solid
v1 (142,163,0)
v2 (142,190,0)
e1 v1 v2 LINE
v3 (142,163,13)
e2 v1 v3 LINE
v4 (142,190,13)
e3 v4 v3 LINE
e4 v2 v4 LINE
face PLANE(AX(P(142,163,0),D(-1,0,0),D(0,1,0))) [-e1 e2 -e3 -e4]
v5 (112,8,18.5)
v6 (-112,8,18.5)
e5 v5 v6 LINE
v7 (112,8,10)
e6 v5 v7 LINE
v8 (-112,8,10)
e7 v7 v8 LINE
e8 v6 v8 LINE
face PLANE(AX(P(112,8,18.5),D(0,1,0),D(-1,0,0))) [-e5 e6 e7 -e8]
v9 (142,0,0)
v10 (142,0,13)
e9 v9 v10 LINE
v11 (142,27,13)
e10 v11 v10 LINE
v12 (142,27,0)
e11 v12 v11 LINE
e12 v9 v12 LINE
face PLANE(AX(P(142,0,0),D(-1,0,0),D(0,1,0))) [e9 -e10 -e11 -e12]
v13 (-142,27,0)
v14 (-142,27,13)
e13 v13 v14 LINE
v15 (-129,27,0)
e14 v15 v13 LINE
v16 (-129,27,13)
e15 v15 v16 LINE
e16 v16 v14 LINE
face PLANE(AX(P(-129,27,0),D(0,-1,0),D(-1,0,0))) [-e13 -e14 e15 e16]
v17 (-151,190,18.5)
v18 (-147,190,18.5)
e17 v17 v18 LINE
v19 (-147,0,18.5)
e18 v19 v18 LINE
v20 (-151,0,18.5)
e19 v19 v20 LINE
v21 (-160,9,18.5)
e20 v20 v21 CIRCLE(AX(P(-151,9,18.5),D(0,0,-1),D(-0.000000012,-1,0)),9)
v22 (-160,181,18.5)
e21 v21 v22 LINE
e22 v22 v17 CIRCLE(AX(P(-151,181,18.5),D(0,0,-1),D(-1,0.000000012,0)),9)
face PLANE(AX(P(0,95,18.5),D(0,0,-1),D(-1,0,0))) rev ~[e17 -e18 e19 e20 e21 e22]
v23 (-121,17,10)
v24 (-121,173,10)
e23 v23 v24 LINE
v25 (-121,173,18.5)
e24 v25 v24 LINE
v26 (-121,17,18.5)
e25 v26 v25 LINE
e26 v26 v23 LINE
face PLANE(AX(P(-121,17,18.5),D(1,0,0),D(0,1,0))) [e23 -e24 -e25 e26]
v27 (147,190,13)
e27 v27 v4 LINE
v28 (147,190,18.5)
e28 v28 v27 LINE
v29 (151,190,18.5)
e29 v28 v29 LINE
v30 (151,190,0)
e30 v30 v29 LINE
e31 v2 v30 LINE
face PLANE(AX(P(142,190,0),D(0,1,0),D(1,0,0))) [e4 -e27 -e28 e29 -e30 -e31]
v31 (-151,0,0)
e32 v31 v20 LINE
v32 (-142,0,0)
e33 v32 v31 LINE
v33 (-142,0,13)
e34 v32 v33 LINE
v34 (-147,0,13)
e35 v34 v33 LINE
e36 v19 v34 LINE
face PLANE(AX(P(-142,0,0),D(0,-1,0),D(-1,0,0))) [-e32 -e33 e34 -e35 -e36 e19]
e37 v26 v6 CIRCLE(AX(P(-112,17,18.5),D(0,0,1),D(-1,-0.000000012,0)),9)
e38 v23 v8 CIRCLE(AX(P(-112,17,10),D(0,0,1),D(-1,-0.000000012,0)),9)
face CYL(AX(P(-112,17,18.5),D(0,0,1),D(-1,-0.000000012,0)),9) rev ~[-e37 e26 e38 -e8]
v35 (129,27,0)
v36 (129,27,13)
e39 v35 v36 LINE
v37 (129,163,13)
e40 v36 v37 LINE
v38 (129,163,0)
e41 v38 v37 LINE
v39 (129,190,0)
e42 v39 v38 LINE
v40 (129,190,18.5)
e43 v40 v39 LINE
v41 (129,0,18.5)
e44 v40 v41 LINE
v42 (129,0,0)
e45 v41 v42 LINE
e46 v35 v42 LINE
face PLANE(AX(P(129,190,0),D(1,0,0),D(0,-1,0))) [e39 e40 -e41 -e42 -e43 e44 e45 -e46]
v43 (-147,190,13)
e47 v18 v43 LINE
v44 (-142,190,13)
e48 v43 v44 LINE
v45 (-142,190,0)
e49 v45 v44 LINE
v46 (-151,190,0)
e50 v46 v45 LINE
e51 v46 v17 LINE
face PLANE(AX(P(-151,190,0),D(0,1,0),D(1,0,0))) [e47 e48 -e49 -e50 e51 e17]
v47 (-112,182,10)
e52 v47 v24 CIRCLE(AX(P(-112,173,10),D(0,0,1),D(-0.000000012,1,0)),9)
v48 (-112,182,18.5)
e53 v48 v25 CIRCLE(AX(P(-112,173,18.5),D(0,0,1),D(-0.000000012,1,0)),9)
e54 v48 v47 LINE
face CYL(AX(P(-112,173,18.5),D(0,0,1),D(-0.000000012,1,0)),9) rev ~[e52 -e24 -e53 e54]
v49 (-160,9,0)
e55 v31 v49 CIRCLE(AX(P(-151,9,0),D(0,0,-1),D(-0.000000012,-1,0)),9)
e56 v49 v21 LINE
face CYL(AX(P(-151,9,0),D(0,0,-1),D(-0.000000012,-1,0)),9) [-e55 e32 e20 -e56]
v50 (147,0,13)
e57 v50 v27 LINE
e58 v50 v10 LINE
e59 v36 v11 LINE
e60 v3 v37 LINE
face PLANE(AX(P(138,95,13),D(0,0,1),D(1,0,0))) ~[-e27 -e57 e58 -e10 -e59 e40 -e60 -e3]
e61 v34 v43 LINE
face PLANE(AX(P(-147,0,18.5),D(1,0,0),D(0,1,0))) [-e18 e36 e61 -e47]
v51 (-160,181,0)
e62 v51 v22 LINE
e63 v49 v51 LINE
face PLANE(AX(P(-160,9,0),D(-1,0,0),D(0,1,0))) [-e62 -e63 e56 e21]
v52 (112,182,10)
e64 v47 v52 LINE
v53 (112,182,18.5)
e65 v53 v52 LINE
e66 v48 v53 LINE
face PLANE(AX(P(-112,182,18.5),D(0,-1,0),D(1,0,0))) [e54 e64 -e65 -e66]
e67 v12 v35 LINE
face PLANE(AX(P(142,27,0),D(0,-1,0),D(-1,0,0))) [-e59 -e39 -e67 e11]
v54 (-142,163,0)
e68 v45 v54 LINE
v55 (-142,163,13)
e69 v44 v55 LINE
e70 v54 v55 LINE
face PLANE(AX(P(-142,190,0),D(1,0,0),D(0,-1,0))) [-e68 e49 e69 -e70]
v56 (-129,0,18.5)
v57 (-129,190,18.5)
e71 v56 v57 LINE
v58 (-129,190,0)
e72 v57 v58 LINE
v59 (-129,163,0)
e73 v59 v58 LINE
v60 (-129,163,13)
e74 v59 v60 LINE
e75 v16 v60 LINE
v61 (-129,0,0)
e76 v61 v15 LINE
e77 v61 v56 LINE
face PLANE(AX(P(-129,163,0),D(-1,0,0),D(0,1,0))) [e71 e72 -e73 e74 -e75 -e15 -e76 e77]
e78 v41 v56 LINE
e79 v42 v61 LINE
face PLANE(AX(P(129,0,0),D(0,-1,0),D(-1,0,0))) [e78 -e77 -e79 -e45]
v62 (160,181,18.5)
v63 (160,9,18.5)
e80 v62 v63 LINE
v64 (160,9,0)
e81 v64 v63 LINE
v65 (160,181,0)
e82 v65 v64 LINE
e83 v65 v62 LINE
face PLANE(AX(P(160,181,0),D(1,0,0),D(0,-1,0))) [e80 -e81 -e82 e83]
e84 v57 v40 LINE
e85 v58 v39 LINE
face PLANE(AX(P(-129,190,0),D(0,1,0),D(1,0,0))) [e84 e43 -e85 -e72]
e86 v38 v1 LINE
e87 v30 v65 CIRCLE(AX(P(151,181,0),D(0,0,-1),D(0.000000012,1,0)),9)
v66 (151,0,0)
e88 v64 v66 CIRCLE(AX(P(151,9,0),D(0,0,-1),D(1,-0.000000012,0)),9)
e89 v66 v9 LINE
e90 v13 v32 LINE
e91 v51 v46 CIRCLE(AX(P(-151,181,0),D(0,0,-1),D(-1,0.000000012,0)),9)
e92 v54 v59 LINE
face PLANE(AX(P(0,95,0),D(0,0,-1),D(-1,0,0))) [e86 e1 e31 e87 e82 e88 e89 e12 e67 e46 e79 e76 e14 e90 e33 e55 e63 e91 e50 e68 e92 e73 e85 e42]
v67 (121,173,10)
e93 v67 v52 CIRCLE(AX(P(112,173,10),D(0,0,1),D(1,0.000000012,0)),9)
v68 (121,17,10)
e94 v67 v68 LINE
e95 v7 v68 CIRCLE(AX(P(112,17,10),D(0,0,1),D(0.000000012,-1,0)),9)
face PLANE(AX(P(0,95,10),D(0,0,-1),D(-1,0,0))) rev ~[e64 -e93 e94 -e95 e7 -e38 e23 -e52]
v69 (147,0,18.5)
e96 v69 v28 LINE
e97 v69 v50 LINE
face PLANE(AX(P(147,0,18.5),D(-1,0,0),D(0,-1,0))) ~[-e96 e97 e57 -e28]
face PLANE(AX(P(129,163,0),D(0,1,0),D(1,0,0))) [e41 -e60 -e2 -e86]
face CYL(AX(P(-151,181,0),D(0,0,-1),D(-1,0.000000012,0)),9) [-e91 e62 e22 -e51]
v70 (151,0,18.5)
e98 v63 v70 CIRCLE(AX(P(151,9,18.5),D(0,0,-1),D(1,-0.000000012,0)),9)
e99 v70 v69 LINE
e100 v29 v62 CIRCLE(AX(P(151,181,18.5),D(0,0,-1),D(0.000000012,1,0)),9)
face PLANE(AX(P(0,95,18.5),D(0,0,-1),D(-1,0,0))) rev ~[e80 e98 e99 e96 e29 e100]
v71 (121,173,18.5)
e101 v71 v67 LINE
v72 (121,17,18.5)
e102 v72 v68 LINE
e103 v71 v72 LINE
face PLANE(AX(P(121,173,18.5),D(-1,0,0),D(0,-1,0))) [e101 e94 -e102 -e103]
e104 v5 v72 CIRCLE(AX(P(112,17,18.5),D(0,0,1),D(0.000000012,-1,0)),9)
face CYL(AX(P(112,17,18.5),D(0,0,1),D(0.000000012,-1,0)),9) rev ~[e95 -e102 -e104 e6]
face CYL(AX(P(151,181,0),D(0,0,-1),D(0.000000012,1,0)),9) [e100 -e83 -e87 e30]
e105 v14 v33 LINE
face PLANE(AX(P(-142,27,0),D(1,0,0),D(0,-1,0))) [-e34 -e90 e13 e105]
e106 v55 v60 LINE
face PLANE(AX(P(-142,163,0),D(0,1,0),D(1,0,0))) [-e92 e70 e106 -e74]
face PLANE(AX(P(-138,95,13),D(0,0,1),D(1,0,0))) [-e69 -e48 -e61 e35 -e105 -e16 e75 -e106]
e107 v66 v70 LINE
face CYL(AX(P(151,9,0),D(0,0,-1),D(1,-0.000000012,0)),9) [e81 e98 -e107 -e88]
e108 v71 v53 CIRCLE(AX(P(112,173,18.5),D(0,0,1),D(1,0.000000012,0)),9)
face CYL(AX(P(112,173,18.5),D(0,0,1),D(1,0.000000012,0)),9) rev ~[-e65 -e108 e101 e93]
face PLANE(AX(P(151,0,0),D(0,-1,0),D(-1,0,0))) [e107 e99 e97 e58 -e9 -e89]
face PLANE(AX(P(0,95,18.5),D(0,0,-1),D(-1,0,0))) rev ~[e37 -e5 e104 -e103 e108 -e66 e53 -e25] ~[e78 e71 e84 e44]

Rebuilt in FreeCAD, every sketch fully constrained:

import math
import FreeCAD as App
import Part
import Sketcher
from FreeCAD import Vector

doc = App.newDocument("Part")
body = doc.addObject("PartDesign::Body", "Body")

# Sketch on XY plane
sketch1 = doc.addObject("Sketcher::SketchObject", "Sketch")
body.addObject(sketch1)
sketch1.AttachmentSupport = (doc.XY_Plane, [""])
sketch1.MapMode = "FlatFace"
sketch1.addGeometry(Part.LineSegment(Vector(-142, 95, 0), Vector(-151, 95, 0)), False)
sketch1.addGeometry(Part.ArcOfCircle(Part.Circle(Vector(-151, 86, 0), Vector(0, 0, 1), 9), math.radians(90), math.radians(180)), False)
sketch1.addGeometry(Part.LineSegment(Vector(-160, 86, 0), Vector(-160, -86, 0)), False)
sketch1.addGeometry(Part.ArcOfCircle(Part.Circle(Vector(-151, -86, 0), Vector(0, 0, 1), 9), math.radians(-180), math.radians(-90)), False)
sketch1.addGeometry(Part.LineSegment(Vector(-151, -95, 0), Vector(-142, -95, 0)), False)
sketch1.addGeometry(Part.LineSegment(Vector(-142, -95, 0), Vector(-142, -68, 0)), False)
sketch1.addGeometry(Part.LineSegment(Vector(-142, -68, 0), Vector(-129, -68, 0)), False)
sketch1.addGeometry(Part.LineSegment(Vector(-129, -68, 0), Vector(-129, -95, 0)), False)
sketch1.addGeometry(Part.LineSegment(Vector(-129, -95, 0), Vector(129, -95, 0)), False)
sketch1.addGeometry(Part.LineSegment(Vector(129, -95, 0), Vector(129, -68, 0)), False)
sketch1.addGeometry(Part.LineSegment(Vector(129, -68, 0), Vector(142, -68, 0)), False)
sketch1.addGeometry(Part.LineSegment(Vector(142, -68, 0), Vector(142, -95, 0)), False)
sketch1.addGeometry(Part.LineSegment(Vector(142, -95, 0), Vector(151, -95, 0)), False)
sketch1.addGeometry(Part.ArcOfCircle(Part.Circle(Vector(151, -86, 0), Vector(0, 0, 1), 9), math.radians(-90), math.radians(0)), False)
sketch1.addGeometry(Part.LineSegment(Vector(160, -86, 0), Vector(160, 86, 0)), False)
sketch1.addGeometry(Part.ArcOfCircle(Part.Circle(Vector(151, 86, 0), Vector(0, 0, 1), 9), math.radians(0), math.radians(90)), False)
sketch1.addGeometry(Part.LineSegment(Vector(151, 95, 0), Vector(142, 95, 0)), False)
sketch1.addGeometry(Part.LineSegment(Vector(142, 95, 0), Vector(142, 68, 0)), False)
sketch1.addGeometry(Part.LineSegment(Vector(142, 68, 0), Vector(129, 68, 0)), False)
sketch1.addGeometry(Part.LineSegment(Vector(129, 68, 0), Vector(129, 95, 0)), False)
sketch1.addGeometry(Part.LineSegment(Vector(129, 95, 0), Vector(-129, 95, 0)), False)
sketch1.addGeometry(Part.LineSegment(Vector(-129, 95, 0), Vector(-129, 68, 0)), False)
sketch1.addGeometry(Part.LineSegment(Vector(-129, 68, 0), Vector(-142, 68, 0)), False)
sketch1.addGeometry(Part.LineSegment(Vector(-142, 68, 0), Vector(-142, 95, 0)), False)
sketch1.addConstraint(Sketcher.Constraint("Tangent", 0, 2, 1, 1))
sketch1.addConstraint(Sketcher.Constraint("Tangent", 1, 2, 2, 1))
sketch1.addConstraint(Sketcher.Constraint("Tangent", 2, 2, 3, 1))
sketch1.addConstraint(Sketcher.Constraint("Tangent", 3, 2, 4, 1))
sketch1.addConstraint(Sketcher.Constraint("Coincident", 4, 2, 5, 1))
sketch1.addConstraint(Sketcher.Constraint("Coincident", 5, 2, 6, 1))
sketch1.addConstraint(Sketcher.Constraint("Coincident", 6, 2, 7, 1))
sketch1.addConstraint(Sketcher.Constraint("Coincident", 7, 2, 8, 1))
sketch1.addConstraint(Sketcher.Constraint("Coincident", 8, 2, 9, 1))
sketch1.addConstraint(Sketcher.Constraint("Coincident", 9, 2, 10, 1))
sketch1.addConstraint(Sketcher.Constraint("Coincident", 10, 2, 11, 1))
sketch1.addConstraint(Sketcher.Constraint("Coincident", 11, 2, 12, 1))
sketch1.addConstraint(Sketcher.Constraint("Tangent", 12, 2, 13, 1))
sketch1.addConstraint(Sketcher.Constraint("Tangent", 13, 2, 14, 1))
sketch1.addConstraint(Sketcher.Constraint("Tangent", 14, 2, 15, 1))
sketch1.addConstraint(Sketcher.Constraint("Tangent", 15, 2, 16, 1))
sketch1.addConstraint(Sketcher.Constraint("Coincident", 16, 2, 17, 1))
sketch1.addConstraint(Sketcher.Constraint("Coincident", 17, 2, 18, 1))
sketch1.addConstraint(Sketcher.Constraint("Coincident", 18, 2, 19, 1))
sketch1.addConstraint(Sketcher.Constraint("Coincident", 19, 2, 20, 1))
sketch1.addConstraint(Sketcher.Constraint("Coincident", 20, 2, 21, 1))
sketch1.addConstraint(Sketcher.Constraint("Coincident", 21, 2, 22, 1))
sketch1.addConstraint(Sketcher.Constraint("Coincident", 22, 2, 23, 1))
sketch1.addConstraint(Sketcher.Constraint("Coincident", 23, 2, 0, 1))
sketch1.addConstraint(Sketcher.Constraint("Horizontal", 0))
sketch1.addConstraint(Sketcher.Constraint("Vertical", 2))
sketch1.addConstraint(Sketcher.Constraint("Horizontal", 4))
sketch1.addConstraint(Sketcher.Constraint("Vertical", 5))
sketch1.addConstraint(Sketcher.Constraint("Horizontal", 6))
sketch1.addConstraint(Sketcher.Constraint("Vertical", 7))
sketch1.addConstraint(Sketcher.Constraint("Horizontal", 8))
sketch1.addConstraint(Sketcher.Constraint("Vertical", 9))
sketch1.addConstraint(Sketcher.Constraint("Horizontal", 10))
sketch1.addConstraint(Sketcher.Constraint("Vertical", 11))
sketch1.addConstraint(Sketcher.Constraint("Horizontal", 12))
sketch1.addConstraint(Sketcher.Constraint("Vertical", 14))
sketch1.addConstraint(Sketcher.Constraint("Horizontal", 16))
sketch1.addConstraint(Sketcher.Constraint("Vertical", 17))
sketch1.addConstraint(Sketcher.Constraint("Horizontal", 18))
sketch1.addConstraint(Sketcher.Constraint("Vertical", 19))
sketch1.addConstraint(Sketcher.Constraint("Horizontal", 20))
sketch1.addConstraint(Sketcher.Constraint("Vertical", 21))
sketch1.addConstraint(Sketcher.Constraint("Horizontal", 22))
sketch1.addConstraint(Sketcher.Constraint("Vertical", 23))
sketch1.addConstraint(Sketcher.Constraint("Equal", 1, 3))
sketch1.addConstraint(Sketcher.Constraint("Equal", 3, 13))
sketch1.addConstraint(Sketcher.Constraint("Equal", 13, 15))
sketch1.addConstraint(Sketcher.Constraint("Symmetric", 1, 3, 13, 3, -1, 1))
sketch1.addConstraint(Sketcher.Constraint("Symmetric", 4, 2, 16, 2, -1, 1))
sketch1.addConstraint(Sketcher.Constraint("Symmetric", 6, 2, 18, 2, -1, 1))
sketch1.addConstraint(Sketcher.Constraint("Symmetric", 8, 2, 20, 2, -1, 1))
sketch1.addConstraint(Sketcher.Constraint("Symmetric", 10, 2, 22, 2, -1, 1))
sketch1.addConstraint(Sketcher.Constraint("Symmetric", 6, 2, 9, 2, -2))
sketch1.addConstraint(Sketcher.Constraint("Symmetric", 4, 2, 11, 2, -2))
sketch1.addConstraint(Sketcher.Constraint("Horizontal", 4, 2, 7, 2))
sketch1.addConstraint(Sketcher.Constraint("Radius", 1, 9.0))
sketch1.addConstraint(Sketcher.Constraint("DistanceX", 0, 2, 0, 1, 9.0))
sketch1.addConstraint(Sketcher.Constraint("DistanceX", 6, 1, 6, 2, 13.0))
sketch1.addConstraint(Sketcher.Constraint("DistanceX", 8, 1, 8, 2, 258.0))
sketch1.addConstraint(Sketcher.Constraint("DistanceY", 2, 2, 2, 1, 172.0))
sketch1.addConstraint(Sketcher.Constraint("DistanceY", 5, 1, 5, 2, 27.0))
pad1 = doc.addObject("PartDesign::Pad", "Pad")
body.addObject(pad1)
pad1.Profile = sketch1
pad1.Length = 18.5

# Sketch on XY plane
sketch2 = doc.addObject("Sketcher::SketchObject", "Sketch001")
body.addObject(sketch2)
sketch2.AttachmentSupport = (doc.XY_Plane, [""])
sketch2.MapMode = "FlatFace"
sketch2.AttachmentOffset = App.Placement(Vector(0, 0, 18.5), App.Rotation())
sketch2.addGeometry(Part.LineSegment(Vector(-147, 95, 0), Vector(-147, -95, 0)), False)
sketch2.addGeometry(Part.LineSegment(Vector(-147, -95, 0), Vector(-129, -95, 0)), False)
sketch2.addGeometry(Part.LineSegment(Vector(-129, -95, 0), Vector(-129, 95, 0)), False)
sketch2.addGeometry(Part.LineSegment(Vector(-129, 95, 0), Vector(-147, 95, 0)), False)
sketch2.addConstraint(Sketcher.Constraint("Coincident", 0, 2, 1, 1))
sketch2.addConstraint(Sketcher.Constraint("Coincident", 1, 2, 2, 1))
sketch2.addConstraint(Sketcher.Constraint("Coincident", 2, 2, 3, 1))
sketch2.addConstraint(Sketcher.Constraint("Coincident", 3, 2, 0, 1))
sketch2.addConstraint(Sketcher.Constraint("Vertical", 0))
sketch2.addConstraint(Sketcher.Constraint("Horizontal", 1))
sketch2.addConstraint(Sketcher.Constraint("Vertical", 2))
sketch2.addConstraint(Sketcher.Constraint("Horizontal", 3))
sketch2.addConstraint(Sketcher.Constraint("DistanceX", 1, 1, 1, 2, 18.0))
sketch2.addConstraint(Sketcher.Constraint("DistanceY", 0, 2, 0, 1, 190.0))
sketch2.addConstraint(Sketcher.Constraint("DistanceX", 0, 2, -1, 1, 147.0))
sketch2.addConstraint(Sketcher.Constraint("DistanceY", 0, 2, -1, 1, 95.0))
pocket1 = doc.addObject("PartDesign::Pocket", "Pocket")
body.addObject(pocket1)
pocket1.Profile = sketch2
pocket1.Length = 5.5
doc.recompute()

mirrored = doc.addObject("PartDesign::Mirrored", "Mirrored")
body.addObject(mirrored)
mirrored.Originals = [pocket1]
mirrored.MirrorPlane = (doc.YZ_Plane, [""])
body.Tip = mirrored

# Sketch on XY plane
sketch3 = doc.addObject("Sketcher::SketchObject", "Sketch002")
body.addObject(sketch3)
sketch3.AttachmentSupport = (doc.XY_Plane, [""])
sketch3.MapMode = "FlatFace"
sketch3.AttachmentOffset = App.Placement(Vector(0, 0, 18.5), App.Rotation())
sketch3.addGeometry(Part.LineSegment(Vector(112, 87, 0), Vector(-112, 87, 0)), False)
sketch3.addGeometry(Part.ArcOfCircle(Part.Circle(Vector(-112, 78, 0), Vector(0, 0, 1), 9), math.radians(90), math.radians(180)), False)
sketch3.addGeometry(Part.LineSegment(Vector(-121, 78, 0), Vector(-121, -78, 0)), False)
sketch3.addGeometry(Part.ArcOfCircle(Part.Circle(Vector(-112, -78, 0), Vector(0, 0, 1), 9), math.radians(-180), math.radians(-90)), False)
sketch3.addGeometry(Part.LineSegment(Vector(-112, -87, 0), Vector(112, -87, 0)), False)
sketch3.addGeometry(Part.ArcOfCircle(Part.Circle(Vector(112, -78, 0), Vector(0, 0, 1), 9), math.radians(-90), math.radians(0)), False)
sketch3.addGeometry(Part.LineSegment(Vector(121, -78, 0), Vector(121, 78, 0)), False)
sketch3.addGeometry(Part.ArcOfCircle(Part.Circle(Vector(112, 78, 0), Vector(0, 0, 1), 9), math.radians(0), math.radians(90)), False)
sketch3.addConstraint(Sketcher.Constraint("Tangent", 0, 2, 1, 1))
sketch3.addConstraint(Sketcher.Constraint("Tangent", 1, 2, 2, 1))
sketch3.addConstraint(Sketcher.Constraint("Tangent", 2, 2, 3, 1))
sketch3.addConstraint(Sketcher.Constraint("Tangent", 3, 2, 4, 1))
sketch3.addConstraint(Sketcher.Constraint("Tangent", 4, 2, 5, 1))
sketch3.addConstraint(Sketcher.Constraint("Tangent", 5, 2, 6, 1))
sketch3.addConstraint(Sketcher.Constraint("Tangent", 6, 2, 7, 1))
sketch3.addConstraint(Sketcher.Constraint("Tangent", 7, 2, 0, 1))
sketch3.addConstraint(Sketcher.Constraint("Horizontal", 0))
sketch3.addConstraint(Sketcher.Constraint("Vertical", 2))
sketch3.addConstraint(Sketcher.Constraint("Horizontal", 4))
sketch3.addConstraint(Sketcher.Constraint("Vertical", 6))
sketch3.addConstraint(Sketcher.Constraint("Equal", 1, 3))
sketch3.addConstraint(Sketcher.Constraint("Equal", 3, 5))
sketch3.addConstraint(Sketcher.Constraint("Equal", 5, 7))
sketch3.addConstraint(Sketcher.Constraint("Symmetric", 1, 3, 5, 3, -1, 1))
sketch3.addConstraint(Sketcher.Constraint("Radius", 1, 9.0))
sketch3.addConstraint(Sketcher.Constraint("DistanceX", 0, 2, 0, 1, 224.0))
sketch3.addConstraint(Sketcher.Constraint("DistanceY", 2, 2, 2, 1, 156.0))
pocket2 = doc.addObject("PartDesign::Pocket", "Pocket001")
body.addObject(pocket2)
pocket2.Profile = sketch3
pocket2.Length = 8.5
doc.recompute()

mirrored2 = doc.addObject("PartDesign::Mirrored", "Mirrored001")
body.addObject(mirrored2)
mirrored2.Originals = [pocket2]
mirrored2.MirrorPlane = (doc.YZ_Plane, [""])
body.Tip = mirrored2
body2 = doc.addObject("PartDesign::Body", "Body001")
doc.recompute()

body.Placement = App.Placement(Vector(0, 95, 0), App.Rotation(Vector(0, 0, 1), 0))
boolean = doc.addObject("PartDesign::Boolean", "Boolean")
body2.addObject(boolean)
boolean.Type = "Fuse"
boolean.addObjects([body])

doc.recompute()
